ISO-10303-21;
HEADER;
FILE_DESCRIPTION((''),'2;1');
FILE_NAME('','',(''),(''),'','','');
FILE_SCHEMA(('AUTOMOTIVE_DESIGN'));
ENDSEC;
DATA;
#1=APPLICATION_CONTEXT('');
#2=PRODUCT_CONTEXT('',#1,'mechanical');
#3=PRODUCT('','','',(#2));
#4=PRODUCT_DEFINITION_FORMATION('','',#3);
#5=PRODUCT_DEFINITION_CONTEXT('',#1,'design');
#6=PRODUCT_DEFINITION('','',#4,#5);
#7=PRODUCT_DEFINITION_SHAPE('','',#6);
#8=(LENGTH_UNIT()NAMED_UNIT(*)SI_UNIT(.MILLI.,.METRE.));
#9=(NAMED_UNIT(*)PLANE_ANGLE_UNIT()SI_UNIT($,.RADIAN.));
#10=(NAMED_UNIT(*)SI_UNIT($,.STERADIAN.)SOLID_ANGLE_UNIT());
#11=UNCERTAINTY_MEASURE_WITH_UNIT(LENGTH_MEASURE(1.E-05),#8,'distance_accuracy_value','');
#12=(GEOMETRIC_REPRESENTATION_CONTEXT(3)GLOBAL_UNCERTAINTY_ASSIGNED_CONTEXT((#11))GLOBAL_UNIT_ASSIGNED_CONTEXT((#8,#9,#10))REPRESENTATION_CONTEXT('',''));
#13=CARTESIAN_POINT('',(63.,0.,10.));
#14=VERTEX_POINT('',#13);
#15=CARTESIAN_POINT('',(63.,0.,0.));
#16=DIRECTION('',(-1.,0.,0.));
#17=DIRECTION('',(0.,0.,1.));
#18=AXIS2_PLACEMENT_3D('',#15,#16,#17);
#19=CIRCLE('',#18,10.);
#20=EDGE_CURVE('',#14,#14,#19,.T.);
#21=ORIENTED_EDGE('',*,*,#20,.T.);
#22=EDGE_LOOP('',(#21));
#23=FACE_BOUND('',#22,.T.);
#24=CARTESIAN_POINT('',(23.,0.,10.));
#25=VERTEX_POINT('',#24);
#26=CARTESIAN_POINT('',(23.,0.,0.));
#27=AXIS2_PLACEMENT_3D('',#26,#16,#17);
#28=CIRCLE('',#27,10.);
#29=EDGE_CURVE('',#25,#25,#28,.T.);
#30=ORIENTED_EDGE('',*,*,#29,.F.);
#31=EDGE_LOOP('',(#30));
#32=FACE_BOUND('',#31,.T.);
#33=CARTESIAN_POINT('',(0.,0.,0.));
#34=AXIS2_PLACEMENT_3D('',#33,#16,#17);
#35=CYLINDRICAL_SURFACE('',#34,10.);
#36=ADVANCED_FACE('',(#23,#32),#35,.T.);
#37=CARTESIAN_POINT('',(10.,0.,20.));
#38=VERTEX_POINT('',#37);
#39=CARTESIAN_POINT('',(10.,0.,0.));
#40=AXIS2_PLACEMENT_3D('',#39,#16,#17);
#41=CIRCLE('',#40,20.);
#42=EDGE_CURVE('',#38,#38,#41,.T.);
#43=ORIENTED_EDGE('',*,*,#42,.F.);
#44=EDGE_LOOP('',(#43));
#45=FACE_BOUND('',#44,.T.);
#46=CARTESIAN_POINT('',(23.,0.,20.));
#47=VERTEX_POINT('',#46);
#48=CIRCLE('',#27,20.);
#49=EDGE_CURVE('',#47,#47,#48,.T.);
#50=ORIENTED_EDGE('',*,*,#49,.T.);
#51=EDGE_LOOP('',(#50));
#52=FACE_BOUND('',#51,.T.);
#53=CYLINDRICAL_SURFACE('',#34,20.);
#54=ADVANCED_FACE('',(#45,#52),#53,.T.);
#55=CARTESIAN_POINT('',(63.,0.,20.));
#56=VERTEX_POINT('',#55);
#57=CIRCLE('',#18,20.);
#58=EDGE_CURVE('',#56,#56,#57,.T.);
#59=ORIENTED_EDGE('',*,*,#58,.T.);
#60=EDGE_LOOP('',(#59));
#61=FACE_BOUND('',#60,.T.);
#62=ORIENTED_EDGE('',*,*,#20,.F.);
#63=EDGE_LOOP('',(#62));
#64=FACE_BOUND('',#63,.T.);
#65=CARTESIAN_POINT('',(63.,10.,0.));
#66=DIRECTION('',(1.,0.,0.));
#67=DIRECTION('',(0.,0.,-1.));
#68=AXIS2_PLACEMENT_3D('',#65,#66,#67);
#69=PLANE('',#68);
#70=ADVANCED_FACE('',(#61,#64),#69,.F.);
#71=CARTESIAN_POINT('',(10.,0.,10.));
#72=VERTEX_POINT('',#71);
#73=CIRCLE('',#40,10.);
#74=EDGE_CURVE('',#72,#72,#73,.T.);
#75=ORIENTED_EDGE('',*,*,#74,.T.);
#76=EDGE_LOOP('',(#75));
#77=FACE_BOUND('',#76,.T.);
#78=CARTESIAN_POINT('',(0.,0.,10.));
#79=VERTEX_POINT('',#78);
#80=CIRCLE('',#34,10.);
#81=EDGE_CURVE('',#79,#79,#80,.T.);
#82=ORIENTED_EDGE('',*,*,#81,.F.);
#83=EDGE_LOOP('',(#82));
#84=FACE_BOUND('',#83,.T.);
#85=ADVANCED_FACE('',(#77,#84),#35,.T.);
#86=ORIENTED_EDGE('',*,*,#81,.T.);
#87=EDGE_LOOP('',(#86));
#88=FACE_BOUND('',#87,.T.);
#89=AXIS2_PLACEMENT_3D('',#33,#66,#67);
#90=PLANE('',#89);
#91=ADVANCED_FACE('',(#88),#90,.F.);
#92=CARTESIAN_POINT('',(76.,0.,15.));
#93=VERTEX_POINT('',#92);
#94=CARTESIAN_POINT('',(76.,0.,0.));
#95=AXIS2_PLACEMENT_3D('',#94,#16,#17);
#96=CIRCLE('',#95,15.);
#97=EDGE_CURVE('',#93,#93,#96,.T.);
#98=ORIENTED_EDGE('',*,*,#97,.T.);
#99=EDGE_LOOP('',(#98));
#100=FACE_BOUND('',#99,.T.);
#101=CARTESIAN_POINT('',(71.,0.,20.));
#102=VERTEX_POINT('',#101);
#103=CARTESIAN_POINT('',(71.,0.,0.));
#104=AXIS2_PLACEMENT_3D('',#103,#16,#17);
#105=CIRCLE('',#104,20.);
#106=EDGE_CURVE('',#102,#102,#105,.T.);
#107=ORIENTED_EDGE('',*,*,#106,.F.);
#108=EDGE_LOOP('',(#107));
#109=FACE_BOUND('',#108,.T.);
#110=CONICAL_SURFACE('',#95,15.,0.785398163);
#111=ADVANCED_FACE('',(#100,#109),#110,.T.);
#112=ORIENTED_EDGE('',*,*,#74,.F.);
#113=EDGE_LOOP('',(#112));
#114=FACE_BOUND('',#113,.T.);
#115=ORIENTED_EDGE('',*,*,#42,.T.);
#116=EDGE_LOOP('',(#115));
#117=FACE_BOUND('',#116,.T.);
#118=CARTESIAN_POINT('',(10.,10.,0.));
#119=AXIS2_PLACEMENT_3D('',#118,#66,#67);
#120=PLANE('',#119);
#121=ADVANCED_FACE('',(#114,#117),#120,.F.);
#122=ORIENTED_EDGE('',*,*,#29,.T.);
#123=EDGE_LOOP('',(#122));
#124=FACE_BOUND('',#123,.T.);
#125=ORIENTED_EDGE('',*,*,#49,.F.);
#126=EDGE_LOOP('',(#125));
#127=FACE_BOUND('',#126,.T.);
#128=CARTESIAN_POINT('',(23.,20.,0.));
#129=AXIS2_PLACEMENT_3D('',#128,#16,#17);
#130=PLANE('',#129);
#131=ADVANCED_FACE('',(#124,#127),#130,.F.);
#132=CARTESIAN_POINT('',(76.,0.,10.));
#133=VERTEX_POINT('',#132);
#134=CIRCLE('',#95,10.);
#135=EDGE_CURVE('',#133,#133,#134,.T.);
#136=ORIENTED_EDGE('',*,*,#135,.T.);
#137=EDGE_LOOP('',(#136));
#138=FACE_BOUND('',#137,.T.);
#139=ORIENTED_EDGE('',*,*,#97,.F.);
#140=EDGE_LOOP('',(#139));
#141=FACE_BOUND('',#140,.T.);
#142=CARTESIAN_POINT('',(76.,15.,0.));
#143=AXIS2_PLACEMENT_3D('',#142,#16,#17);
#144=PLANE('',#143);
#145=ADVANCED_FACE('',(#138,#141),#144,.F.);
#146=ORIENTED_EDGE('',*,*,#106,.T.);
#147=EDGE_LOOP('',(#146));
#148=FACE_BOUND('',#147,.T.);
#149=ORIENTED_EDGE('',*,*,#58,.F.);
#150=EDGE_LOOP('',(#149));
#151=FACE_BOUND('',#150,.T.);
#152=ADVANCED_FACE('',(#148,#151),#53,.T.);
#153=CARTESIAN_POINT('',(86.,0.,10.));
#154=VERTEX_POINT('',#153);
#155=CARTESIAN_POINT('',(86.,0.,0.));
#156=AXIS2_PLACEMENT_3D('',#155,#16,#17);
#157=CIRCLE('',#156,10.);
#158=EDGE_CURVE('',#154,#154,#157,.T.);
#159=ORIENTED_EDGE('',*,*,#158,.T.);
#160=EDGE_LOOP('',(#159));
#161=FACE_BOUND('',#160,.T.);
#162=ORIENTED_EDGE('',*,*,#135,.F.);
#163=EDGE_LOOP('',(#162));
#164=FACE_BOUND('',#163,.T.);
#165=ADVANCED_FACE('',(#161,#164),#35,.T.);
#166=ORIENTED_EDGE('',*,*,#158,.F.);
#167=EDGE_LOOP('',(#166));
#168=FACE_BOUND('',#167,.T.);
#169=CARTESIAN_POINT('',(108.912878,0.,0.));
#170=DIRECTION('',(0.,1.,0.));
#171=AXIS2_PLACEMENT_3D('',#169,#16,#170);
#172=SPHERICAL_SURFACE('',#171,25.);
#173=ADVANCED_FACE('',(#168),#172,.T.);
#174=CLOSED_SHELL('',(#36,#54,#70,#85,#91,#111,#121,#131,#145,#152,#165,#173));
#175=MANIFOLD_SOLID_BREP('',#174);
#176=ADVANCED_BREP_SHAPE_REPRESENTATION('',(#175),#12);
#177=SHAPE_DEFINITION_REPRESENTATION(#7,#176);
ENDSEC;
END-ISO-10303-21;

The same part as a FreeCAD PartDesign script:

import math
import FreeCAD as App
import Part
import Sketcher

V = App.Vector
Q = App.Units.Quantity

doc = App.newDocument("Part")
body = doc.addObject("PartDesign::Body", "Body")

# Sketch on XY plane
sketch1 = doc.addObject("Sketcher::SketchObject", "Sketch")
body.addObject(sketch1)
sketch1.AttachmentSupport = (doc.XY_Plane, [""])
sketch1.MapMode = "FlatFace"
sketch1.addGeometry(Part.LineSegment(V(0, 10, 0), V(0, 0, 0)), False)
sketch1.addGeometry(Part.LineSegment(V(0, 0, 0), V(133.912878, 0, 0)), False)
sketch1.addGeometry(Part.ArcOfCircle(Part.Circle(V(108.912878, 0, 0), V(0, 0, 1), 25), math.radians(0), math.radians(156.421822)), False)
sketch1.addGeometry(Part.LineSegment(V(86, 10, 0), V(76, 10, 0)), False)
sketch1.addGeometry(Part.LineSegment(V(76, 10, 0), V(76, 15, 0)), False)
sketch1.addGeometry(Part.LineSegment(V(76, 15, 0), V(71, 20, 0)), False)
sketch1.addGeometry(Part.LineSegment(V(71, 20, 0), V(63, 20, 0)), False)
sketch1.addGeometry(Part.LineSegment(V(63, 20, 0), V(63, 10, 0)), False)
sketch1.addGeometry(Part.LineSegment(V(63, 10, 0), V(23, 10, 0)), False)
sketch1.addGeometry(Part.LineSegment(V(23, 10, 0), V(23, 20, 0)), False)
sketch1.addGeometry(Part.LineSegment(V(23, 20, 0), V(10, 20, 0)), False)
sketch1.addGeometry(Part.LineSegment(V(10, 20, 0), V(10, 10, 0)), False)
sketch1.addGeometry(Part.LineSegment(V(10, 10, 0), V(0, 10, 0)), False)
sketch1.addConstraint(Sketcher.Constraint("Coincident", 0, 2, 1, 1))
sketch1.addConstraint(Sketcher.Constraint("Coincident", 1, 2, 2, 1))
sketch1.addConstraint(Sketcher.Constraint("Coincident", 2, 2, 3, 1))
sketch1.addConstraint(Sketcher.Constraint("Coincident", 3, 2, 4, 1))
sketch1.addConstraint(Sketcher.Constraint("Coincident", 4, 2, 5, 1))
sketch1.addConstraint(Sketcher.Constraint("Coincident", 5, 2, 6, 1))
sketch1.addConstraint(Sketcher.Constraint("Coincident", 6, 2, 7, 1))
sketch1.addConstraint(Sketcher.Constraint("Coincident", 7, 2, 8, 1))
sketch1.addConstraint(Sketcher.Constraint("Coincident", 8, 2, 9, 1))
sketch1.addConstraint(Sketcher.Constraint("Coincident", 9, 2, 10, 1))
sketch1.addConstraint(Sketcher.Constraint("Coincident", 10, 2, 11, 1))
sketch1.addConstraint(Sketcher.Constraint("Coincident", 11, 2, 12, 1))
sketch1.addConstraint(Sketcher.Constraint("Coincident", 12, 2, 0, 1))
sketch1.addConstraint(Sketcher.Constraint("Vertical", 0))
sketch1.addConstraint(Sketcher.Constraint("Horizontal", 1))
sketch1.addConstraint(Sketcher.Constraint("Horizontal", 3))
sketch1.addConstraint(Sketcher.Constraint("Vertical", 4))
sketch1.addConstraint(Sketcher.Constraint("Horizontal", 6))
sketch1.addConstraint(Sketcher.Constraint("Vertical", 7))
sketch1.addConstraint(Sketcher.Constraint("Horizontal", 8))
sketch1.addConstraint(Sketcher.Constraint("Vertical", 9))
sketch1.addConstraint(Sketcher.Constraint("Horizontal", 10))
sketch1.addConstraint(Sketcher.Constraint("Vertical", 11))
sketch1.addConstraint(Sketcher.Constraint("Horizontal", 12))
sketch1.addConstraint(Sketcher.Constraint("Coincident", 0, 2, -1, 1))
sketch1.addConstraint(Sketcher.Constraint("PointOnObject", 2, 3, -1))
sketch1.addConstraint(Sketcher.Constraint("Horizontal", 3, 2, 7, 2))
sketch1.addConstraint(Sketcher.Constraint("Horizontal", 6, 2, 9, 2))
sketch1.addConstraint(Sketcher.Constraint("Horizontal", 8, 2, 11, 2))
sketch1.addConstraint(Sketcher.Constraint("Equal", 3, 12))
sketch1.addConstraint(Sketcher.Constraint("Equal", 12, 0))
sketch1.addConstraint(Sketcher.Constraint("Equal", 0, 7))
sketch1.addConstraint(Sketcher.Constraint("Radius", 2, Q("25 mm")))
sketch1.addConstraint(Sketcher.Constraint("DistanceX", 3, 2, 3, 1, Q("10 mm")))
sketch1.addConstraint(Sketcher.Constraint("DistanceX", 6, 2, 6, 1, Q("8 mm")))
sketch1.addConstraint(Sketcher.Constraint("DistanceX", 8, 2, 8, 1, Q("40 mm")))
sketch1.addConstraint(Sketcher.Constraint("DistanceX", 10, 2, 10, 1, Q("13 mm")))
sketch1.addConstraint(Sketcher.Constraint("DistanceY", 4, 1, 4, 2, Q("5 mm")))
sketch1.addConstraint(Sketcher.Constraint("Angle", 5, Q("135 deg")))
revolution = doc.addObject("PartDesign::Revolution", "Revolution")
body.addObject(revolution)
revolution.Profile = sketch1
revolution.ReferenceAxis = (sketch1, ["H_Axis"])
revolution.Angle = 360

doc.recompute()
